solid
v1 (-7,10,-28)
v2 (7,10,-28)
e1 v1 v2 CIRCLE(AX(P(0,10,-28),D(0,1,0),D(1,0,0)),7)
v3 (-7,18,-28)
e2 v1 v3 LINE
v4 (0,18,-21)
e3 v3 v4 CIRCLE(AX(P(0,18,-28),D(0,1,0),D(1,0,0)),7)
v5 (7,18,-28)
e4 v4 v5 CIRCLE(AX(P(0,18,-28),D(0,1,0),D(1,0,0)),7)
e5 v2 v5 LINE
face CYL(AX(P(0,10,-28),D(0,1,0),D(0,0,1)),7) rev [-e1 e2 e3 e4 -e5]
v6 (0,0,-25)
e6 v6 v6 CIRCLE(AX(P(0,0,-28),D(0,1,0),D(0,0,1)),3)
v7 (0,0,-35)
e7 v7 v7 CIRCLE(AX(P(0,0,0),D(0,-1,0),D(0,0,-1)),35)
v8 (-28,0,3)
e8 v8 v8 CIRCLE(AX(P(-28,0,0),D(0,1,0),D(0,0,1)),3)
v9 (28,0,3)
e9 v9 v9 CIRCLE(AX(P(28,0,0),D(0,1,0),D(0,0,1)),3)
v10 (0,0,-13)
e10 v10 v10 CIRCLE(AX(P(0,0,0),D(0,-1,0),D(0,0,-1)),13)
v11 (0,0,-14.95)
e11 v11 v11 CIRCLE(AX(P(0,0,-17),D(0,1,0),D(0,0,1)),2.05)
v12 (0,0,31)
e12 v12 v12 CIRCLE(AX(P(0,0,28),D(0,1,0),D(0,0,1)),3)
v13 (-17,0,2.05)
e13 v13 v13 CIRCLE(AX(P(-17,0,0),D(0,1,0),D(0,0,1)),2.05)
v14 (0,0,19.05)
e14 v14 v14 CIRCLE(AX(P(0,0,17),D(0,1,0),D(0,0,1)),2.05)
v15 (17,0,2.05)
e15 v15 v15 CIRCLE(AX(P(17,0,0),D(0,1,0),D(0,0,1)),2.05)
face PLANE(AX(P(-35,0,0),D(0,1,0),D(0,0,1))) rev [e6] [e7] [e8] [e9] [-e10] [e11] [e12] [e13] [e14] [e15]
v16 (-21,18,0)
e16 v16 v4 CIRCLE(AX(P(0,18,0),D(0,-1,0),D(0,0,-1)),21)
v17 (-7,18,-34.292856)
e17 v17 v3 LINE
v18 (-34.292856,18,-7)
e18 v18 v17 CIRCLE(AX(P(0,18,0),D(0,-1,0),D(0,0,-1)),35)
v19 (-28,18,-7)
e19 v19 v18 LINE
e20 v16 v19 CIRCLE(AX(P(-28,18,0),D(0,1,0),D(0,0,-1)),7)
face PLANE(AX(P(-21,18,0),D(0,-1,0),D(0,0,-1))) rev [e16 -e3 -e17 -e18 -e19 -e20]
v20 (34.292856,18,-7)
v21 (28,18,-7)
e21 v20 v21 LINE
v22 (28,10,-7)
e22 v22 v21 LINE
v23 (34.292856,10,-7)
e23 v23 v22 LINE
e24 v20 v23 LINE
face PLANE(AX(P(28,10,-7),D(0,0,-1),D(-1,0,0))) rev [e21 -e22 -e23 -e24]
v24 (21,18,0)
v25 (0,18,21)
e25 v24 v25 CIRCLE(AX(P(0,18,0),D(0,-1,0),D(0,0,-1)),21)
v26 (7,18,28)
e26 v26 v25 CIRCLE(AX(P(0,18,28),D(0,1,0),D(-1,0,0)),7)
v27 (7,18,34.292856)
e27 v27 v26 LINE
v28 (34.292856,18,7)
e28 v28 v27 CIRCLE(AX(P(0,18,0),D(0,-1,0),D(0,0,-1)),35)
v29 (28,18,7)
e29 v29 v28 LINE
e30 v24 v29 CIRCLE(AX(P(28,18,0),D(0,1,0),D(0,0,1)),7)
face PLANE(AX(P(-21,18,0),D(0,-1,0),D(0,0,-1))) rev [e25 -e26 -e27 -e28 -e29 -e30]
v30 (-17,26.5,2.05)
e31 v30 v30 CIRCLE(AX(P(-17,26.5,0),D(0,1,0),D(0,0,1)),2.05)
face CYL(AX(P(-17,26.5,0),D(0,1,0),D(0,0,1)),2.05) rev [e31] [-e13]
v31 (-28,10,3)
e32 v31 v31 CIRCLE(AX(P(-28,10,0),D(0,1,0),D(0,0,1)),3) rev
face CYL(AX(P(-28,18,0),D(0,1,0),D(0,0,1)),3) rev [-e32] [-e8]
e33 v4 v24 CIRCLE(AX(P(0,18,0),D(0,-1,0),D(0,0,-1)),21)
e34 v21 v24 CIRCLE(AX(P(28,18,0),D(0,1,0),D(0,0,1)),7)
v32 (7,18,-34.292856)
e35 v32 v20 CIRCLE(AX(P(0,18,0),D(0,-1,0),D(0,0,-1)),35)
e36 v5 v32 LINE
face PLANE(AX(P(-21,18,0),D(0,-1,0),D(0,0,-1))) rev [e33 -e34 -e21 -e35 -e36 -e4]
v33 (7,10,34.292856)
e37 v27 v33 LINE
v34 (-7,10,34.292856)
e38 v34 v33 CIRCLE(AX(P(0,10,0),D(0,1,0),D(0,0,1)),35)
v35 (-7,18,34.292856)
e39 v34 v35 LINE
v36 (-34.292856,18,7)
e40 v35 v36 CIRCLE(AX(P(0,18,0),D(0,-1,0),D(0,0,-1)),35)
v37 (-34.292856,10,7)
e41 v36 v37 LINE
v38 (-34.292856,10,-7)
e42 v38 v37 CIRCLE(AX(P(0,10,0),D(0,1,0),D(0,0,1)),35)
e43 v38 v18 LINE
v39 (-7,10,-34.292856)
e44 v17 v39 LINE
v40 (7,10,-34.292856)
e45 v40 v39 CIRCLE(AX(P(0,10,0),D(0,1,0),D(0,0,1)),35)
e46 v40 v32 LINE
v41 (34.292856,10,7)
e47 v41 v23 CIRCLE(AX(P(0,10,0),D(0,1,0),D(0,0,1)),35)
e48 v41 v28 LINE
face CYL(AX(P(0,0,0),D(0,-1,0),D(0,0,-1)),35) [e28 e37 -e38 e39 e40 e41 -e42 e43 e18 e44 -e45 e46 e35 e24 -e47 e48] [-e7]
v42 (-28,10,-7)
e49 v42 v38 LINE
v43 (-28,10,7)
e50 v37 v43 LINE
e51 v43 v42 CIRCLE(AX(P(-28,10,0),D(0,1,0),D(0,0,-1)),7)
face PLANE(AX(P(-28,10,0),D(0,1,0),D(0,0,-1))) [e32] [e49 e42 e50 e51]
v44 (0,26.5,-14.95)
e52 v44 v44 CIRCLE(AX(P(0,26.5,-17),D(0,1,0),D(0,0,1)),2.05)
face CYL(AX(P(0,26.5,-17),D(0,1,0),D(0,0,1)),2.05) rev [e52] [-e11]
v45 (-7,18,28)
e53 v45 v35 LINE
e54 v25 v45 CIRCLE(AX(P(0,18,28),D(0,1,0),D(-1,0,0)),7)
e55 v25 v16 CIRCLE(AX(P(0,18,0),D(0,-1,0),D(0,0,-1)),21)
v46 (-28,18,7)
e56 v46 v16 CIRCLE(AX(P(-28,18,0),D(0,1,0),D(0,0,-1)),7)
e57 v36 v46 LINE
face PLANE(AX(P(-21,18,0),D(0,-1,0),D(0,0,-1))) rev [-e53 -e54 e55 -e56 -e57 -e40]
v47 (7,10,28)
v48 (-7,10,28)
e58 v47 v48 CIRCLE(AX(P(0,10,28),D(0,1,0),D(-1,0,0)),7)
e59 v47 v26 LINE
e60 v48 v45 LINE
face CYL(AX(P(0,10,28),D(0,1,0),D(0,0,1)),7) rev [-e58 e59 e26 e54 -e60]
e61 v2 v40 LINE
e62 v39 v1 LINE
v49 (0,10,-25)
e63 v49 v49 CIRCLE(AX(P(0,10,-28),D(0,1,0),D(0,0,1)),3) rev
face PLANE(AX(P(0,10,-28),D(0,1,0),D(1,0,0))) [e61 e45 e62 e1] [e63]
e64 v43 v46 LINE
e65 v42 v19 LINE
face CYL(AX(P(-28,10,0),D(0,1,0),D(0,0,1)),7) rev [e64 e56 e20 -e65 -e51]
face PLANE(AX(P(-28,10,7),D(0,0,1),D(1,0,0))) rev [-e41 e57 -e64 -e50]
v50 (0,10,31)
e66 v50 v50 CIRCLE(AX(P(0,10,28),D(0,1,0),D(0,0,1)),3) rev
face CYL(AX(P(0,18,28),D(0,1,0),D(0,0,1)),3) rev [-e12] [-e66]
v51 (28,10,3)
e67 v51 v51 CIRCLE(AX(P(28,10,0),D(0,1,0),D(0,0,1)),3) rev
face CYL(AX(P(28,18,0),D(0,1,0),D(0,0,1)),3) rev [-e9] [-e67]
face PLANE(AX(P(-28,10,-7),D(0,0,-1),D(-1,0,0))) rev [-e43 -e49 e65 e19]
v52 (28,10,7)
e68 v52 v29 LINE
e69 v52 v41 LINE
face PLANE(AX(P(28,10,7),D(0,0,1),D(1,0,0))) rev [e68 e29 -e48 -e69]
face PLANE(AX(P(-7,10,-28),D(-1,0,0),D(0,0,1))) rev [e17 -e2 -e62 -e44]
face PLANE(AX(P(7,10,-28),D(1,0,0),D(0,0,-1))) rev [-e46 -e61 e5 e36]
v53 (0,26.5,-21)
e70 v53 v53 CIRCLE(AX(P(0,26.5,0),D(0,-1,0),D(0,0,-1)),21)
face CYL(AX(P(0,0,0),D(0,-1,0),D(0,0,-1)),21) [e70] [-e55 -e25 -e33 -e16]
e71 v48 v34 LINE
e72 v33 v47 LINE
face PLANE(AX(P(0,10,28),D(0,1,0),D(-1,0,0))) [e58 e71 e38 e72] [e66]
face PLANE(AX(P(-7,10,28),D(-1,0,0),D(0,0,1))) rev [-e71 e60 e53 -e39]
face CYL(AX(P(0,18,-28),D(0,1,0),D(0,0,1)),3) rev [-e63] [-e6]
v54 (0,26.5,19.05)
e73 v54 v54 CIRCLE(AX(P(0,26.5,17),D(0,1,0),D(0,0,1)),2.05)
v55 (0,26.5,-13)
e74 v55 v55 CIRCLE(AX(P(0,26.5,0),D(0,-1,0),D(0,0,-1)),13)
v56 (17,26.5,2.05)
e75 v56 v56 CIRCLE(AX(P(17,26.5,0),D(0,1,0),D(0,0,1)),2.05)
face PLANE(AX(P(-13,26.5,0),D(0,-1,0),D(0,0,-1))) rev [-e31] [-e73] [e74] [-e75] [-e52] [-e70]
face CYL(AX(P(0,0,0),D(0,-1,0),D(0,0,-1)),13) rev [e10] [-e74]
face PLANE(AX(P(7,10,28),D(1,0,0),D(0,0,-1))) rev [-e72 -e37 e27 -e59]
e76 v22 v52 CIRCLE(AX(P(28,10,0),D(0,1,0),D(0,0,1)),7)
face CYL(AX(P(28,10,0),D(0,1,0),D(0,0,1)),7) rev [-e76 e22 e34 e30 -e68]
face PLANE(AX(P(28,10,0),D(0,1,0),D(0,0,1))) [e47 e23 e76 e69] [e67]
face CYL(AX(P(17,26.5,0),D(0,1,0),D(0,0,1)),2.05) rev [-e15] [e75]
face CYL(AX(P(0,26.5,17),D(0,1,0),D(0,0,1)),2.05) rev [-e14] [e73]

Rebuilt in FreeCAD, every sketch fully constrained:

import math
import FreeCAD as App
import Part
import Sketcher
from FreeCAD import Vector

doc = App.newDocument("Part")
body = doc.addObject("PartDesign::Body", "Body")

sketch1 = doc.addObject("Sketcher::SketchObject", "Sketch")
body.addObject(sketch1)
sketch1.AttachmentSupport = (doc.XY_Plane, [""])
sketch1.MapMode = "FlatFace"
sketch1.addGeometry([
    Part.LineSegment(Vector(-13, 0, 0), Vector(-13, 26, 0)),
    Part.LineSegment(Vector(-13, 26, 0), Vector(-21, 26, 0)),
    Part.LineSegment(Vector(-21, 26, 0), Vector(-21, 18, 0)),
    Part.LineSegment(Vector(-21, 18, 0), Vector(-35, 18, 0)),
    Part.LineSegment(Vector(-35, 18, 0), Vector(-35, 0, 0)),
    Part.LineSegment(Vector(-35, 0, 0), Vector(-13, 0, 0)),
], False)
sketch1.addConstraint([
    Sketcher.Constraint("Coincident", 0, 2, 1, 1),
    Sketcher.Constraint("Coincident", 1, 2, 2, 1),
    Sketcher.Constraint("Coincident", 2, 2, 3, 1),
    Sketcher.Constraint("Coincident", 3, 2, 4, 1),
    Sketcher.Constraint("Coincident", 4, 2, 5, 1),
    Sketcher.Constraint("Coincident", 5, 2, 0, 1),
    Sketcher.Constraint("Vertical", 0),
    Sketcher.Constraint("Horizontal", 1),
    Sketcher.Constraint("Vertical", 2),
    Sketcher.Constraint("Horizontal", 3),
    Sketcher.Constraint("Vertical", 4),
    Sketcher.Constraint("Horizontal", 5),
    Sketcher.Constraint("PointOnObject", 4, 2, -1),
    Sketcher.Constraint("DistanceX", 1, 2, 1, 1, 8.0),
    Sketcher.Constraint("DistanceX", 3, 2, 3, 1, 14.0),
    Sketcher.Constraint("DistanceY", 4, 2, 4, 1, 18.0),
    Sketcher.Constraint("DistanceY", 0, 1, 0, 2, 26.5),
    Sketcher.Constraint("DistanceX", 0, 2, -1, 1, 13.0),
])
revolution = doc.addObject("PartDesign::Revolution", "Revolution")
body.addObject(revolution)
revolution.Profile = sketch1
revolution.ReferenceAxis = (sketch1, ["V_Axis"])
revolution.Angle = 360

sketch2 = doc.addObject("Sketcher::SketchObject", "Sketch001")
body.addObject(sketch2)
sketch2.AttachmentSupport = (doc.XZ_Plane, [""])
sketch2.MapMode = "FlatFace"
sketch2.AttachmentOffset = App.Placement(Vector(0, 0, -26.5), App.Rotation())
sketch2.addGeometry(Part.Circle(Vector(17, 0, 0), Vector(0, 0, 1), 2), False)
sketch2.addConstraint([
    Sketcher.Constraint("PointOnObject", 0, 3, -1),
    Sketcher.Constraint("Diameter", 0, 4.1),
    Sketcher.Constraint("DistanceX", -1, 1, 0, 3, 17.0),
])
doc.recompute()
hole = doc.addObject("PartDesign::Hole", "Hole")
body.addObject(hole)
hole.Profile = sketch2
hole.ThreadType = "None"
hole.Diameter = 4.1
hole.DepthType = "Dimension"
hole.Depth = 26.501
hole.DrillPoint = "Flat"
hole.Reversed = True

sketch3 = doc.addObject("Sketcher::SketchObject", "Sketch002")
body.addObject(sketch3)
sketch3.AttachmentSupport = (doc.XZ_Plane, [""])
sketch3.MapMode = "FlatFace"
sketch3.AttachmentOffset = App.Placement(Vector(0, 0, -18), App.Rotation())
sketch3.addGeometry(Part.Circle(Vector(28, 0, 0), Vector(0, 0, 1), 3), False)
sketch3.addConstraint([
    Sketcher.Constraint("PointOnObject", 0, 3, -1),
    Sketcher.Constraint("Diameter", 0, 6.0),
    Sketcher.Constraint("DistanceX", -1, 1, 0, 3, 28.0),
])
doc.recompute()
hole2 = doc.addObject("PartDesign::Hole", "Hole001")
body.addObject(hole2)
hole2.Profile = sketch3
hole2.ThreadType = "None"
hole2.Diameter = 6
hole2.DepthType = "Dimension"
hole2.Depth = 18.001
hole2.DrillPoint = "Flat"
hole2.Reversed = True

sketch4 = doc.addObject("Sketcher::SketchObject", "Sketch003")
body.addObject(sketch4)
sketch4.AttachmentSupport = (doc.XZ_Plane, [""])
sketch4.MapMode = "FlatFace"
sketch4.AttachmentOffset = App.Placement(Vector(0, 0, -18), App.Rotation())
sketch4.addGeometry([
    Part.LineSegment(Vector(48, -7, 0), Vector(28, -7, 0)),
    Part.ArcOfCircle(Part.Circle(Vector(28, 0, 0), Vector(0, 0, 1), 7), math.radians(90), math.radians(270)),
    Part.LineSegment(Vector(28, 7, 0), Vector(48, 7, 0)),
    Part.LineSegment(Vector(48, 7, 0), Vector(48, -7, 0)),
], False)
sketch4.addConstraint([
    Sketcher.Constraint("Tangent", 0, 2, 1, 2),
    Sketcher.Constraint("Tangent", 1, 1, 2, 1),
    Sketcher.Constraint("Coincident", 2, 2, 3, 1),
    Sketcher.Constraint("Coincident", 3, 2, 0, 1),
    Sketcher.Constraint("Horizontal", 0),
    Sketcher.Constraint("Horizontal", 2),
    Sketcher.Constraint("Vertical", 3),
    Sketcher.Constraint("PointOnObject", 1, 3, -1),
    Sketcher.Constraint("Radius", 1, 7.0),
    Sketcher.Constraint("DistanceX", 0, 2, 0, 1, 20.0),
    Sketcher.Constraint("DistanceX", -1, 1, 1, 3, 28.0),
])
pocket1 = doc.addObject("PartDesign::Pocket", "Pocket")
body.addObject(pocket1)
pocket1.Profile = sketch4
pocket1.Length = 8
pocket1.Reversed = True
doc.recompute()

polarpattern = doc.addObject("PartDesign::PolarPattern", "PolarPattern")
body.addObject(polarpattern)
polarpattern.Originals = [hole, hole2, pocket1]
polarpattern.Axis = (doc.Y_Axis, [""])
polarpattern.Angle = 360
polarpattern.Occurrences = 4
body.Tip = polarpattern

doc.recompute()
